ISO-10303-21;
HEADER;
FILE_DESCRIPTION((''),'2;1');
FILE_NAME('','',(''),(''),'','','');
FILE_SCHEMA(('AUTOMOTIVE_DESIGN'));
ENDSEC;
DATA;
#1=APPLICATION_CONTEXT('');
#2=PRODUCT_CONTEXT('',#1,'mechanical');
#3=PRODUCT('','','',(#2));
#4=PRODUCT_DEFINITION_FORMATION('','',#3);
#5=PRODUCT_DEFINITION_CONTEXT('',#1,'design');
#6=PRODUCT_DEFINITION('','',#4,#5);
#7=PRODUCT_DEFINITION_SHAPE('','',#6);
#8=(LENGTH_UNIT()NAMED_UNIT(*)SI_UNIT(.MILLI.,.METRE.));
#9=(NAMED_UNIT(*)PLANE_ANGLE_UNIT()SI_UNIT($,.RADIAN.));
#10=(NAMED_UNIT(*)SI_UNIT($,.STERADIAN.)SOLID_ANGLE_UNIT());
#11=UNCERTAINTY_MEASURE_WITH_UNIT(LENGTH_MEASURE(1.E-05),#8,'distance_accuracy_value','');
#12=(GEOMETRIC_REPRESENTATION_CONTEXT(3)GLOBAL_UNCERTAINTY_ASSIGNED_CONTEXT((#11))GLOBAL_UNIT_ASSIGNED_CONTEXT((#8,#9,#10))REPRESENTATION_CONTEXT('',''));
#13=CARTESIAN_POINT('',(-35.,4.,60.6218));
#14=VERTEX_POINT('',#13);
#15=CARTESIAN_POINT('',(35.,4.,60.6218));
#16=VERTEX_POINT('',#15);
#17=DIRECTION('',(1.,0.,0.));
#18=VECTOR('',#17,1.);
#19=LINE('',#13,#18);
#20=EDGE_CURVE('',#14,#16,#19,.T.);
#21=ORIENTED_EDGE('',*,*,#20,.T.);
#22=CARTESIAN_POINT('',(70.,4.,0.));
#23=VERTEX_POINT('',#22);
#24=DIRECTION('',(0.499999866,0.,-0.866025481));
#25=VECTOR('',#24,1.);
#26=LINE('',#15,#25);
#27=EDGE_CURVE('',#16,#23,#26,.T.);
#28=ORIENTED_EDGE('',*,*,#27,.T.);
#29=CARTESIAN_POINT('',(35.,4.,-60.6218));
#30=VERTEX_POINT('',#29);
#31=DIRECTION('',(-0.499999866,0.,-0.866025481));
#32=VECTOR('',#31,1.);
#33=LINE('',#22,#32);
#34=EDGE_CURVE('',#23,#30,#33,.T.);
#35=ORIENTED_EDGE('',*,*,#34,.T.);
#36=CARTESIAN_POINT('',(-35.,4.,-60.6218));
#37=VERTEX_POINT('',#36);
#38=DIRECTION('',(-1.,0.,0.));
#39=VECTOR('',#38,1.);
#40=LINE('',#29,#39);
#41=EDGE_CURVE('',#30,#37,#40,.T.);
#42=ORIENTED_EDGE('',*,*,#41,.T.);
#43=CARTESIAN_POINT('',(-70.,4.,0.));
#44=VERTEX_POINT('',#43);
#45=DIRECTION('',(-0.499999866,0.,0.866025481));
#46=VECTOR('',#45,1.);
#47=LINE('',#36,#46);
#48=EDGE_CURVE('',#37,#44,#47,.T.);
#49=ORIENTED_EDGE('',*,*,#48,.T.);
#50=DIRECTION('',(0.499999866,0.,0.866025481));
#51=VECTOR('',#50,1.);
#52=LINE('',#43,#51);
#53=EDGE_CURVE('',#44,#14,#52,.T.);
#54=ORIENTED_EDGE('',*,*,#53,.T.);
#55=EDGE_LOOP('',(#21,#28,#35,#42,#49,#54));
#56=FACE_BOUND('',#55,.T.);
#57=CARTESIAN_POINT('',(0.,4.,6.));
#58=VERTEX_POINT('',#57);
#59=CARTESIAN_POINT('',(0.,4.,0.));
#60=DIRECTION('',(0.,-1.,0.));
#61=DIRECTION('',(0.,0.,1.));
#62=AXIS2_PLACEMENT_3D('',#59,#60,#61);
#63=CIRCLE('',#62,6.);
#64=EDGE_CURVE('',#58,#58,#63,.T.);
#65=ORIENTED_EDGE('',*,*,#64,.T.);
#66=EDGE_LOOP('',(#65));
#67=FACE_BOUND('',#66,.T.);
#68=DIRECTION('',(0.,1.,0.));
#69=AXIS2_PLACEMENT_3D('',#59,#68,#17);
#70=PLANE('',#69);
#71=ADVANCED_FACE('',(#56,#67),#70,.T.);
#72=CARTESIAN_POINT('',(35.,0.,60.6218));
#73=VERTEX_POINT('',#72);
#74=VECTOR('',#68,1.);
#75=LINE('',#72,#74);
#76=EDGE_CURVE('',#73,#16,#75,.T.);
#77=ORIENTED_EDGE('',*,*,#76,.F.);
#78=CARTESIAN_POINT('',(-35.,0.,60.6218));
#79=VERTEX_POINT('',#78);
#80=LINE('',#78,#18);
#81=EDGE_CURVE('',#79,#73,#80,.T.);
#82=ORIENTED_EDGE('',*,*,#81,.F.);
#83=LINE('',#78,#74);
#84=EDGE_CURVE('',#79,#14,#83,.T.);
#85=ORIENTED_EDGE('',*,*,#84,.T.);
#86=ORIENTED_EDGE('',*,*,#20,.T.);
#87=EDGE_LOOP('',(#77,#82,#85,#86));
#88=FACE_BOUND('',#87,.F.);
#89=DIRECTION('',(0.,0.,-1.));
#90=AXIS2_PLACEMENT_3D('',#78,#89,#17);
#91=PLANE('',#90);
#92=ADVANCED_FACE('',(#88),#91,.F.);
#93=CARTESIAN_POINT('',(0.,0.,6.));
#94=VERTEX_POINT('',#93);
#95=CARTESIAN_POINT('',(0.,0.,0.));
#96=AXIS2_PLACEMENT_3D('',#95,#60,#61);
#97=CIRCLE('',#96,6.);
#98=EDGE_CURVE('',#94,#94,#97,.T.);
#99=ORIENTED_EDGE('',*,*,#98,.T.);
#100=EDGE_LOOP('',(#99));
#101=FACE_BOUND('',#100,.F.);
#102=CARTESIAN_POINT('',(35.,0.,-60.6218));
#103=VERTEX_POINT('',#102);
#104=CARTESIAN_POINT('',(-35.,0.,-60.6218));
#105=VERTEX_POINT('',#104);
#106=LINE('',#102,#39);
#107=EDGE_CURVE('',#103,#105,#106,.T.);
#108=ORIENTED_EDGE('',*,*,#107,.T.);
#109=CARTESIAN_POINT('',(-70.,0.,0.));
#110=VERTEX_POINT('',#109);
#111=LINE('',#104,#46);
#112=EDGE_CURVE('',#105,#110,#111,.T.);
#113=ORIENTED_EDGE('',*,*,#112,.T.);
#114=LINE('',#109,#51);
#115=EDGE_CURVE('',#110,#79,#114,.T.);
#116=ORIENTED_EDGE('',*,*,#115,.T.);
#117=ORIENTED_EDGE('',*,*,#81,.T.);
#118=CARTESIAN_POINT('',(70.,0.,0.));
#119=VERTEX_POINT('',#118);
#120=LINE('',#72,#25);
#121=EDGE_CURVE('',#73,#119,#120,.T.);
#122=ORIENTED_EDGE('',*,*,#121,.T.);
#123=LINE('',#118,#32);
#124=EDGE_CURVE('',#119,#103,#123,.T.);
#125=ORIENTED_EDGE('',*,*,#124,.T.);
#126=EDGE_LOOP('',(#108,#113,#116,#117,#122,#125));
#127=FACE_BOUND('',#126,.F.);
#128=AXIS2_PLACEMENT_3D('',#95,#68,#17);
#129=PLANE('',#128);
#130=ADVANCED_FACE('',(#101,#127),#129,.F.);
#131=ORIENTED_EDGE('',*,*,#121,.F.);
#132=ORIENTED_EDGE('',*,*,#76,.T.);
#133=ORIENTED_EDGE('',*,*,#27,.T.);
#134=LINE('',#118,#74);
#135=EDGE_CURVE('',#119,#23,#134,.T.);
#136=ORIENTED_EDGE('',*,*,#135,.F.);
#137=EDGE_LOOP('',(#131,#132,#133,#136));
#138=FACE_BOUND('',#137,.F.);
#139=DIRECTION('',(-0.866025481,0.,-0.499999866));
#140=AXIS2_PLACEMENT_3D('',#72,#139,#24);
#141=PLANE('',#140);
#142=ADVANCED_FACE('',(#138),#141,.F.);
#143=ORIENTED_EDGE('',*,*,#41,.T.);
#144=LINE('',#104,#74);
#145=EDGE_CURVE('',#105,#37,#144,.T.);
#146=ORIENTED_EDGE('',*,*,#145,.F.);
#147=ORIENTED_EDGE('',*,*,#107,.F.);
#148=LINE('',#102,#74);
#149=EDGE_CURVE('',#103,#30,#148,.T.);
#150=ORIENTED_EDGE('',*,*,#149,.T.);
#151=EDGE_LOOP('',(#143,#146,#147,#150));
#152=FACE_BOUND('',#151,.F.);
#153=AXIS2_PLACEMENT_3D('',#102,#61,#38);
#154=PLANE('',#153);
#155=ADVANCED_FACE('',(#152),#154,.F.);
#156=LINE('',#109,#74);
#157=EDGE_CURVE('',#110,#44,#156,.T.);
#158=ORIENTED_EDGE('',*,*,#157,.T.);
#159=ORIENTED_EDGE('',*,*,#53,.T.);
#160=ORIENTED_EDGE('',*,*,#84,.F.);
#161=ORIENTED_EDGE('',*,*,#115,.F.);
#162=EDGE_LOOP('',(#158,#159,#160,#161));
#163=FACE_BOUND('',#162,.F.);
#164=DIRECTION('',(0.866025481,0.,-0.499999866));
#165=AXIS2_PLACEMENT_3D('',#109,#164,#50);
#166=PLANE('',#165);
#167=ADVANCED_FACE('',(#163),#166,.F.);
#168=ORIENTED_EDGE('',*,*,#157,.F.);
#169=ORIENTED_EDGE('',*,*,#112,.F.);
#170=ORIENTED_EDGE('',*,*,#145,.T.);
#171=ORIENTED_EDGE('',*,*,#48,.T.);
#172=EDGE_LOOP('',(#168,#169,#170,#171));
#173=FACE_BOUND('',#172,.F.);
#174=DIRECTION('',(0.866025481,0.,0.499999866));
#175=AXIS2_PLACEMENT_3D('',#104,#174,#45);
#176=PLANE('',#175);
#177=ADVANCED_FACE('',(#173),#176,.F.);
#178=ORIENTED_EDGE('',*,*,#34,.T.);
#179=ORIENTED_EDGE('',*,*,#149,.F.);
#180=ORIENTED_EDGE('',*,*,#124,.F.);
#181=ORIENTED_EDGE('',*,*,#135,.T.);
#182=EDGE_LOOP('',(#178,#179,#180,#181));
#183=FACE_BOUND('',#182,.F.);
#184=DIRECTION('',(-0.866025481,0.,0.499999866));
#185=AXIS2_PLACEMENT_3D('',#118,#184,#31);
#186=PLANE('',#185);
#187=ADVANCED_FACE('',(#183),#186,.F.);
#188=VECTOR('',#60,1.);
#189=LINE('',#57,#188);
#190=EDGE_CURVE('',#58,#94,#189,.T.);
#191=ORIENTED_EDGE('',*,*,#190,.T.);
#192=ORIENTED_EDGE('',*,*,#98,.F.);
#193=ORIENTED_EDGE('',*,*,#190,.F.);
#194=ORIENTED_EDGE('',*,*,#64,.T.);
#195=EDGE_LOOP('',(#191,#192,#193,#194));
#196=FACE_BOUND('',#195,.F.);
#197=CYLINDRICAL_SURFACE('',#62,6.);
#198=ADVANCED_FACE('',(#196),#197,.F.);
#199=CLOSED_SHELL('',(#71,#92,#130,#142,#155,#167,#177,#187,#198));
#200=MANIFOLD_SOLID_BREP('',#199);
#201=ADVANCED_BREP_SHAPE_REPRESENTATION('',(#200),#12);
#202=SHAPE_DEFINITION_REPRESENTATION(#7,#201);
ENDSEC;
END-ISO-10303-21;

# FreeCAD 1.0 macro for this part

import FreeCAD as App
import Part
import Sketcher
Q = App.Units.Quantity

doc = App.newDocument("Part")
params = doc.addObject("Spreadsheet::Sheet", "Params")
for row, (alias, value) in enumerate([
    ("sketch1_width", "70 mm"),
    ("sketch1_length", "70 mm"),
    ("pad1_length", "4 mm"),
    ("sketch2_diameter", "12 mm"),
    ("hole_diameter", "12 mm"),
    ("hole_depth", "30 mm"),
], start=1):
    params.set(f"A{row}", alias)
    params.set(f"B{row}", "=" + value)
    params.setAlias(f"B{row}", alias)

body = doc.addObject("PartDesign::Body", "Body")

sketch1 = body.newObject("Sketcher::SketchObject", "Sketch")
sketch1.AttachmentSupport = (doc.getObject("XZ_Plane"), [""])
sketch1.MapMode = "FlatFace"
sketch1.addGeometry([
    Part.LineSegment(App.Vector(35, 61, 0), App.Vector(70, 0, 0)),
    Part.LineSegment(App.Vector(70, 0, 0), App.Vector(35, -61, 0)),
    Part.LineSegment(App.Vector(35, -61, 0), App.Vector(-35, -61, 0)),
    Part.LineSegment(App.Vector(-35, -61, 0), App.Vector(-70, 0, 0)),
    Part.LineSegment(App.Vector(-70, 0, 0), App.Vector(-35, 61, 0)),
    Part.LineSegment(App.Vector(-35, 61, 0), App.Vector(35, 61, 0)),
], False)
sketch1.addConstraint([
    Sketcher.Constraint("Coincident", 0, 2, 1, 1),
    Sketcher.Constraint("Coincident", 1, 2, 2, 1),
    Sketcher.Constraint("Coincident", 2, 2, 3, 1),
    Sketcher.Constraint("Coincident", 3, 2, 4, 1),
    Sketcher.Constraint("Coincident", 4, 2, 5, 1),
    Sketcher.Constraint("Coincident", 5, 2, 0, 1),
    Sketcher.Constraint("Horizontal", 2),
    Sketcher.Constraint("Horizontal", 5),
    Sketcher.Constraint("Symmetric", 0, 2, 3, 2, -1, 1),
    Sketcher.Constraint("Symmetric", 1, 2, 4, 2, -1, 1),
    Sketcher.Constraint("PointOnObject", 0, 2, -1),
    Sketcher.Constraint("Parallel", 0, 3),
    Sketcher.Constraint("Vertical", 2, 2, 4, 2),
    Sketcher.Constraint("DistanceX", 2, 2, 2, 1, Q("70 mm")),
    Sketcher.Constraint("Distance", 0, Q("70 mm")),
    Sketcher.Constraint("DistanceX", -1, 1, 0, 2, Q("70 mm")),
])
sketch1.setExpression("Constraints[13]", "Params.sketch1_width")
sketch1.setExpression("Constraints[14]", "Params.sketch1_length")
pad1 = body.newObject("PartDesign::Pad", "Pad")
pad1.Profile = sketch1
pad1.setExpression("Length", "Params.pad1_length")
pad1.Reversed = True

sketch2 = body.newObject("Sketcher::SketchObject", "Sketch001")
sketch2.AttachmentSupport = (doc.getObject("XZ_Plane"), [""])
sketch2.MapMode = "FlatFace"
sketch2.AttachmentOffset = App.Placement(App.Vector(0, 0, -4), App.Rotation())
sketch2.addGeometry(Part.Circle(App.Vector(0, 0, 0), App.Vector(0, 0, 1), 6), False)
sketch2.addConstraint([
    Sketcher.Constraint("Coincident", 0, 3, -1, 1),
    Sketcher.Constraint("Diameter", 0, Q("12 mm")),
])
sketch2.setExpression("Constraints[1]", "Params.sketch2_diameter")
doc.recompute()
hole = body.newObject("PartDesign::Hole", "Hole")
hole.Profile = sketch2
hole.ThreadType = "None"
hole.setExpression("Diameter", "Params.hole_diameter")
hole.DepthType = "Dimension"
hole.setExpression("Depth", "Params.hole_depth")
hole.DrillPoint = "Flat"
hole.Reversed = True

doc.recompute()
